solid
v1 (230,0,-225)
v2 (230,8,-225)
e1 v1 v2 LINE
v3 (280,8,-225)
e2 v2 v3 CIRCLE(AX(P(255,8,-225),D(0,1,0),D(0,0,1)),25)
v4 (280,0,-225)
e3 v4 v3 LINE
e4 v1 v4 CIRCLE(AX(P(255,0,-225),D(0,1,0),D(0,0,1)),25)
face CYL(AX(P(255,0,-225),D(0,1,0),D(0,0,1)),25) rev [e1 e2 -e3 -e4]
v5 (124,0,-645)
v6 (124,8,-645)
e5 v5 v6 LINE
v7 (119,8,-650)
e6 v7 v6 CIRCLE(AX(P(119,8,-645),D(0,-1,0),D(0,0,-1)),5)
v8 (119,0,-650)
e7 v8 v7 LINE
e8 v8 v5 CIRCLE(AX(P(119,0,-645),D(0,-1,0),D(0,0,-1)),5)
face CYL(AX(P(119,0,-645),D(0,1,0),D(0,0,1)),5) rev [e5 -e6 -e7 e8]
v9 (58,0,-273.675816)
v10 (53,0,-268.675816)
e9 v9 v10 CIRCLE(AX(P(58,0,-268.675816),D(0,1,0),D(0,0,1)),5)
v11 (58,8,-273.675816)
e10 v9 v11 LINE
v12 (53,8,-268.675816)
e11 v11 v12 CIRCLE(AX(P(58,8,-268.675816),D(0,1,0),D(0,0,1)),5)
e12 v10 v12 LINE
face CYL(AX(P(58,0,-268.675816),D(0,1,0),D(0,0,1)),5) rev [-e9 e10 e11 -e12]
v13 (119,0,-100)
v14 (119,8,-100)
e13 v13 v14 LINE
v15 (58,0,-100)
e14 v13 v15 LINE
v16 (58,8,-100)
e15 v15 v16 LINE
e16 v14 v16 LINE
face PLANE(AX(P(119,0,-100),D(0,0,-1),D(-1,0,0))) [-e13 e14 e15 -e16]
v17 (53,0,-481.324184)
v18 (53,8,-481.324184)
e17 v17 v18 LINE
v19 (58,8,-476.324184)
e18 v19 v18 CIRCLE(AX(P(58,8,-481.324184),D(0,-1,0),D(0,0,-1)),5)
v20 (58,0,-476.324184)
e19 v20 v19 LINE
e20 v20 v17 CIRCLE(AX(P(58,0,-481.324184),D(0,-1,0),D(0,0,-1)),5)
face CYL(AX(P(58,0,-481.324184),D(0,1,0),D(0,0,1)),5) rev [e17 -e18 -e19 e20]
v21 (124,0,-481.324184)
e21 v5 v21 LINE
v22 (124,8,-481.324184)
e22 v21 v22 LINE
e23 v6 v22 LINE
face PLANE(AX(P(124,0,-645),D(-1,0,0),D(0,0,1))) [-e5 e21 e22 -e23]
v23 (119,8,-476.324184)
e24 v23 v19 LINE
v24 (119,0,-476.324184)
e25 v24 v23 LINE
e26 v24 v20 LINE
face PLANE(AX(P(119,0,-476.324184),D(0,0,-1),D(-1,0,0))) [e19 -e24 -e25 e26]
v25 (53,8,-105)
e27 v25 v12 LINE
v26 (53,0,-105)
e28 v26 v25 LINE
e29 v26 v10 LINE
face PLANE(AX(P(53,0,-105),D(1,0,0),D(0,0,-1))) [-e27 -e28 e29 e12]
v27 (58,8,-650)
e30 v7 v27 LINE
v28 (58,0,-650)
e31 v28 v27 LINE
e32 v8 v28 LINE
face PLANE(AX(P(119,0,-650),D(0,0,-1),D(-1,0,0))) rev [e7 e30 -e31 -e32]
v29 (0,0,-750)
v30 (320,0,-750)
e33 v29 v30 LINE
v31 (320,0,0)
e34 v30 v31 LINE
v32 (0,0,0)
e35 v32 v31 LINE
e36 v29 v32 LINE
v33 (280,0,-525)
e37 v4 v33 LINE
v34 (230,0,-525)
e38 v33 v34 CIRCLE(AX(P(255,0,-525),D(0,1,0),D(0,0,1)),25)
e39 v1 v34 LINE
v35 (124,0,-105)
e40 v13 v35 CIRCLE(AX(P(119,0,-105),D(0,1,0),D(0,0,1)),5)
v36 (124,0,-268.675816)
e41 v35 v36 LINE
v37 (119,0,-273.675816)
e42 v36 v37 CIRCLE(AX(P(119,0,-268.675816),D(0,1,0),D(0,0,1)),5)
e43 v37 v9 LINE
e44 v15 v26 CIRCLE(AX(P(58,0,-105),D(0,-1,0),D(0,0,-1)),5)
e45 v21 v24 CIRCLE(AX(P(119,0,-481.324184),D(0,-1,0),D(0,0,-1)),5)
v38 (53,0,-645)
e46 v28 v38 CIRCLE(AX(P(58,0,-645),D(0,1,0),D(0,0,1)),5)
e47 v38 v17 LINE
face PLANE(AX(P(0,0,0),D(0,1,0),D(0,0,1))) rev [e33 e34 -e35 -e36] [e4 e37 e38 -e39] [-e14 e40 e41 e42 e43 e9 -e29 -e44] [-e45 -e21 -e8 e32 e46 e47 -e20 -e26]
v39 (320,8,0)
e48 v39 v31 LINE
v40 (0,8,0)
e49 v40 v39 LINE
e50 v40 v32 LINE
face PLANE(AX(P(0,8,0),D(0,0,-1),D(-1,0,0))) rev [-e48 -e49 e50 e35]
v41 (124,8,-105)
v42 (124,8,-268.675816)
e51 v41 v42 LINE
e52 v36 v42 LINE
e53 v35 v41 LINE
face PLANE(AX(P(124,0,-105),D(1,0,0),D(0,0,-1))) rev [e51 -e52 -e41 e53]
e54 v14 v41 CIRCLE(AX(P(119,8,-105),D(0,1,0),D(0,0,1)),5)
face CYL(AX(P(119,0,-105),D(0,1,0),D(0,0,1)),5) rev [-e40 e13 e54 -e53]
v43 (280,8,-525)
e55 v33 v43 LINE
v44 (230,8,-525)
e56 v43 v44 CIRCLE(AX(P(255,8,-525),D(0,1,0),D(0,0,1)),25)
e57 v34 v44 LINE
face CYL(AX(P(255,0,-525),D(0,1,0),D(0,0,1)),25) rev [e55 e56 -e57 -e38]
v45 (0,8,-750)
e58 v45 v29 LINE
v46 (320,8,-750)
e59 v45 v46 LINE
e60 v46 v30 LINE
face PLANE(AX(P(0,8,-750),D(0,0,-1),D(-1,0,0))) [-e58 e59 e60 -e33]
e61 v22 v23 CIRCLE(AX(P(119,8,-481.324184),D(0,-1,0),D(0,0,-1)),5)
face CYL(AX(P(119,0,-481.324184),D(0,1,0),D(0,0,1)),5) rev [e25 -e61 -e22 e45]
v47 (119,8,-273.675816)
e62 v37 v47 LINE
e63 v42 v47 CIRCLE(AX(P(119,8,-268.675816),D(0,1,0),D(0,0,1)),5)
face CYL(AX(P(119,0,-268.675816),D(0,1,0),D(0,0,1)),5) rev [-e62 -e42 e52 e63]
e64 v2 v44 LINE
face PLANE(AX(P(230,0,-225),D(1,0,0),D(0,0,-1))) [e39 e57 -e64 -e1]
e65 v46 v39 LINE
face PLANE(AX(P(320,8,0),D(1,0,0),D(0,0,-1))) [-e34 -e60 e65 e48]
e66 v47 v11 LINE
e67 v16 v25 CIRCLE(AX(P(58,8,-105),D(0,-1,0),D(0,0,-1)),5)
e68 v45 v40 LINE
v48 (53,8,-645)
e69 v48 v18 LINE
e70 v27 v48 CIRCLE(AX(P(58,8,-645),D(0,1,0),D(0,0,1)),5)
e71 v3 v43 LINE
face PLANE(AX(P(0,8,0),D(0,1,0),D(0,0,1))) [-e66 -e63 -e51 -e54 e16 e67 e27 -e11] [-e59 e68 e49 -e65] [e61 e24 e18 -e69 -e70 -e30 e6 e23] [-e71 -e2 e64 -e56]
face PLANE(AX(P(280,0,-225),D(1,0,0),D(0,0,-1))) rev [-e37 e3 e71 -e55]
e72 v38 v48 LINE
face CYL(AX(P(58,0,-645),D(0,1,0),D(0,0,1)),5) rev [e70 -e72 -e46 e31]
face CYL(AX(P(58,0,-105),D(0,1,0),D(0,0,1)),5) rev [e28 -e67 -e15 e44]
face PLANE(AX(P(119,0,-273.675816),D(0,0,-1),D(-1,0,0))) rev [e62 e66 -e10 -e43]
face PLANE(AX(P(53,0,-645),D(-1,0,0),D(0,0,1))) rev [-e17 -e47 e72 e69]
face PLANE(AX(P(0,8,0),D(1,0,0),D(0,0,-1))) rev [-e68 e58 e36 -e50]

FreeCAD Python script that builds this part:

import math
import FreeCAD as App
import Part
import Sketcher

V = App.Vector
Q = App.Units.Quantity


def add_polygon(sketch, points):
    """Adds a closed chain of lines whose ends are joined by coincident constraints."""
    first, n = sketch.GeometryCount, len(points)
    for a, b in zip(points, points[1:] + points[:1]):
        sketch.addGeometry(Part.LineSegment(App.Vector(*a, 0), App.Vector(*b, 0)), False)
    for i in range(n):
        sketch.addConstraint(Sketcher.Constraint("Coincident", first + i, 2, first + (i + 1) % n, 1))

doc = App.newDocument("Part")
body = doc.addObject("PartDesign::Body", "Body")

sketch1 = body.newObject("Sketcher::SketchObject", "Sketch")
sketch1.AttachmentSupport = (doc.getObject("XZ_Plane"), [""])
sketch1.MapMode = "FlatFace"
add_polygon(sketch1, [(0, -750), (0, 0), (320, 0), (320, -750)])
sketch1.addConstraint([
    Sketcher.Constraint("Vertical", 0),
    Sketcher.Constraint("Horizontal", 1),
    Sketcher.Constraint("Vertical", 2),
    Sketcher.Constraint("Horizontal", 3),
    Sketcher.Constraint("Coincident", 0, 2, -1, 1),
    Sketcher.Constraint("DistanceX", 1, 1, 1, 2, Q("320 mm")),
    Sketcher.Constraint("DistanceY", 0, 1, 0, 2, Q("750 mm")),
])
pad1 = body.newObject("PartDesign::Pad", "Pad")
pad1.Profile = sketch1
pad1.Length = 8
pad1.Reversed = True

sketch2 = body.newObject("Sketcher::SketchObject", "Sketch001")
sketch2.AttachmentSupport = (doc.getObject("XZ_Plane"), [""])
sketch2.MapMode = "FlatFace"
sketch2.AttachmentOffset = App.Placement(V(0, 0, -8), App.Rotation())
sketch2.addGeometry([
    Part.LineSegment(V(58, -100, 0), V(119, -100, 0)),
    Part.ArcOfCircle(Part.Circle(V(119, -105, 0), V(0, 0, 1), 5), math.radians(0), math.radians(90)),
    Part.LineSegment(V(124, -105, 0), V(124, -269, 0)),
    Part.ArcOfCircle(Part.Circle(V(119, -269, 0), V(0, 0, 1), 5), math.radians(-90), math.radians(0)),
    Part.LineSegment(V(119, -274, 0), V(58, -274, 0)),
    Part.ArcOfCircle(Part.Circle(V(58, -269, 0), V(0, 0, 1), 5), math.radians(180), math.radians(270)),
    Part.LineSegment(V(53, -269, 0), V(53, -105, 0)),
    Part.ArcOfCircle(Part.Circle(V(58, -105, 0), V(0, 0, 1), 5), math.radians(90), math.radians(180)),
    Part.LineSegment(V(230, -525, 0), V(230, -225, 0)),
    Part.ArcOfCircle(Part.Circle(V(255, -225, 0), V(0, 0, 1), 25), math.radians(0), math.radians(180)),
    Part.LineSegment(V(280, -225, 0), V(280, -525, 0)),
    Part.ArcOfCircle(Part.Circle(V(255, -525, 0), V(0, 0, 1), 25), math.radians(180), math.radians(360)),
    Part.LineSegment(V(58, -476, 0), V(119, -476, 0)),
    Part.ArcOfCircle(Part.Circle(V(119, -481, 0), V(0, 0, 1), 5), math.radians(0), math.radians(90)),
    Part.LineSegment(V(124, -481, 0), V(124, -645, 0)),
    Part.ArcOfCircle(Part.Circle(V(119, -645, 0), V(0, 0, 1), 5), math.radians(-90), math.radians(0)),
    Part.LineSegment(V(119, -650, 0), V(58, -650, 0)),
    Part.ArcOfCircle(Part.Circle(V(58, -645, 0), V(0, 0, 1), 5), math.radians(180), math.radians(270)),
    Part.LineSegment(V(53, -645, 0), V(53, -481, 0)),
    Part.ArcOfCircle(Part.Circle(V(58, -481, 0), V(0, 0, 1), 5), math.radians(90), math.radians(180)),
], False)
sketch2.addConstraint([
    Sketcher.Constraint("Tangent", 0, 2, 1, 2),
    Sketcher.Constraint("Tangent", 1, 1, 2, 1),
    Sketcher.Constraint("Tangent", 2, 2, 3, 2),
    Sketcher.Constraint("Tangent", 3, 1, 4, 1),
    Sketcher.Constraint("Tangent", 4, 2, 5, 2),
    Sketcher.Constraint("Tangent", 5, 1, 6, 1),
    Sketcher.Constraint("Tangent", 6, 2, 7, 2),
    Sketcher.Constraint("Tangent", 7, 1, 0, 1),
    Sketcher.Constraint("Tangent", 8, 2, 9, 2),
    Sketcher.Constraint("Tangent", 9, 1, 10, 1),
    Sketcher.Constraint("Tangent", 10, 2, 11, 2),
    Sketcher.Constraint("Tangent", 11, 1, 8, 1),
    Sketcher.Constraint("Tangent", 12, 2, 13, 2),
    Sketcher.Constraint("Tangent", 13, 1, 14, 1),
    Sketcher.Constraint("Tangent", 14, 2, 15, 2),
    Sketcher.Constraint("Tangent", 15, 1, 16, 1),
    Sketcher.Constraint("Tangent", 16, 2, 17, 2),
    Sketcher.Constraint("Tangent", 17, 1, 18, 1),
    Sketcher.Constraint("Tangent", 18, 2, 19, 2),
    Sketcher.Constraint("Tangent", 19, 1, 12, 1),
    Sketcher.Constraint("Horizontal", 0),
    Sketcher.Constraint("Vertical", 2),
    Sketcher.Constraint("Horizontal", 4),
    Sketcher.Constraint("Vertical", 6),
    Sketcher.Constraint("Vertical", 8),
    Sketcher.Constraint("Vertical", 10),
    Sketcher.Constraint("Horizontal", 12),
    Sketcher.Constraint("Vertical", 14),
    Sketcher.Constraint("Horizontal", 16),
    Sketcher.Constraint("Vertical", 18),
    Sketcher.Constraint("Equal", 1, 3),
    Sketcher.Constraint("Equal", 3, 5),
    Sketcher.Constraint("Equal", 5, 7),
    Sketcher.Constraint("Equal", 7, 13),
    Sketcher.Constraint("Equal", 13, 15),
    Sketcher.Constraint("Equal", 15, 17),
    Sketcher.Constraint("Equal", 17, 19),
    Sketcher.Constraint("Vertical", 3, 3, 13, 3),
    Sketcher.Constraint("Vertical", 7, 3, 17, 3),
    Sketcher.Constraint("Equal", 6, 14),
    Sketcher.Constraint("Radius", 1, Q("5 mm")),
    Sketcher.Constraint("Radius", 9, Q("25 mm")),
    Sketcher.Constraint("DistanceX", 0, 1, 0, 2, Q("61 mm")),
    Sketcher.Constraint("DistanceY", 8, 1, 8, 2, Q("300 mm")),
    Sketcher.Constraint("DistanceX", -1, 1, 1, 3, Q("119 mm")),
    Sketcher.Constraint("DistanceY", 1, 3, -1, 1, Q("105 mm")),
    Sketcher.Constraint("DistanceX", -1, 1, 9, 3, Q("255 mm")),
    Sketcher.Constraint("DistanceY", 9, 3, -1, 1, Q("225 mm")),
    Sketcher.Constraint("DistanceY", 15, 3, -1, 1, Q("645 mm")),
    Sketcher.Constraint("DistanceY", 2, 2, 2, 1, Q("163.675816 mm")),
])
pocket1 = body.newObject("PartDesign::Pocket", "Pocket")
pocket1.Profile = sketch2
pocket1.Length = 8
pocket1.Reversed = True

doc.recompute()
